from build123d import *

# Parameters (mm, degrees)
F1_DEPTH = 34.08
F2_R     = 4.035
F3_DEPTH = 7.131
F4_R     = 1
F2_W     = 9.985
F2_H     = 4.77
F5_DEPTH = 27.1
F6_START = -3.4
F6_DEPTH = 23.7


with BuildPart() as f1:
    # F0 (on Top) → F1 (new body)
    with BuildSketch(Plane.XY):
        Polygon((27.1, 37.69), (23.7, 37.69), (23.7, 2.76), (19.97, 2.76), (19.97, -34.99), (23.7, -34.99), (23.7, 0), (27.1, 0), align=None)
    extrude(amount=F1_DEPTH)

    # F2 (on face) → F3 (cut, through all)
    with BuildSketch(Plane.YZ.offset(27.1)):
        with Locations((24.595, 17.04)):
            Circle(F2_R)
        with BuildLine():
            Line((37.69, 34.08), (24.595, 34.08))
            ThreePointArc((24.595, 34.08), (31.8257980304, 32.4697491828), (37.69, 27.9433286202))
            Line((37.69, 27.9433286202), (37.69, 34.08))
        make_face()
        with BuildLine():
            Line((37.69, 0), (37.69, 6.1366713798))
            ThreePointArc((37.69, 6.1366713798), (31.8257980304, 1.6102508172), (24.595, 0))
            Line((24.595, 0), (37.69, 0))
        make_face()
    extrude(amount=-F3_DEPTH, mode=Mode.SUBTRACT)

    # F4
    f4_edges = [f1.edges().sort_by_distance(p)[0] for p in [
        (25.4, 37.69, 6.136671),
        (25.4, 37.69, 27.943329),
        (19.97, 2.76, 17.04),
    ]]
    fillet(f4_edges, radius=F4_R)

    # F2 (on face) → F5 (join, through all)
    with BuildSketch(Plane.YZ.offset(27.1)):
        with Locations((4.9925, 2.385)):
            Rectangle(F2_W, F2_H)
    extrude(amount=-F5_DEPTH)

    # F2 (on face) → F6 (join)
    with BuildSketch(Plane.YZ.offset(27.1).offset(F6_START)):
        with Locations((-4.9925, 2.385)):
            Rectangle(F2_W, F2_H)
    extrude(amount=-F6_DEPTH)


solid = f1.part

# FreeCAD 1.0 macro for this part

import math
import FreeCAD as App
import Part
import Sketcher
from FreeCAD import Vector
Q = App.Units.Quantity


def edges_at(feature, points):
    """Names of the edges that pass closest to the given points."""
    edges = feature.Shape.Edges
    near = lambda p: min(range(len(edges)), key=lambda i: edges[i].distToShape(Part.Vertex(*p))[0])
    return sorted({f"Edge{near(p) + 1}" for p in points})


def add_polygon(sketch, points):
    """Adds a closed chain of lines whose ends are joined by coincident constraints."""
    first, n = sketch.GeometryCount, len(points)
    for a, b in zip(points, points[1:] + points[:1]):
        sketch.addGeometry(Part.LineSegment(App.Vector(*a, 0), App.Vector(*b, 0)), False)
    for i in range(n):
        sketch.addConstraint(Sketcher.Constraint("Coincident", first + i, 2, first + (i + 1) % n, 1))

doc = App.newDocument("Part")
params = doc.addObject("Spreadsheet::Sheet", "Params")
for row, (alias, value) in enumerate([
    ("sketch1_width", "3.4 mm"),
    ("sketch1_width2", "3.73 mm"),
    ("sketch1_height", "34.93 mm"),
    ("sketch1_height2", "37.75 mm"),
    ("sketch1_height3", "34.99 mm"),
    ("pad1_length", "34.08 mm"),
    ("sketch2_diameter", "8.07 mm"),
    ("sketch2_radius", "17.04 mm"),
    ("fillet_radius", "1 mm"),
    ("sketch3_height", "4.77 mm"),
    ("pad2_length", "27.1 mm"),
    ("sketch4_height", "4.77 mm"),
    ("pad3_length", "23.7 mm"),
], start=1):
    params.set(f"A{row}", alias)
    params.set(f"B{row}", "=" + value)
    params.setAlias(f"B{row}", alias)

body = doc.addObject("PartDesign::Body", "Body")

sketch1 = body.newObject("Sketcher::SketchObject", "Sketch")
sketch1.AttachmentSupport = (doc.getObject("XY_Plane"), [""])
sketch1.MapMode = "FlatFace"
add_polygon(sketch1, [(27.1, 37.7), (23.7, 37.7), (23.7, 2.8), (20, 2.8), (20, -35), (23.7, -35), (23.7, 0), (27.1, 0)])
sketch1.addConstraint(Sketcher.Constraint("Horizontal", 0))
sketch1.addConstraint(Sketcher.Constraint("Vertical", 1))
sketch1.addConstraint(Sketcher.Constraint("Horizontal", 2))
sketch1.addConstraint(Sketcher.Constraint("Vertical", 3))
sketch1.addConstraint(Sketcher.Constraint("Horizontal", 4))
sketch1.addConstraint(Sketcher.Constraint("Vertical", 5))
sketch1.addConstraint(Sketcher.Constraint("Horizontal", 6))
sketch1.addConstraint(Sketcher.Constraint("Vertical", 7))
sketch1.addConstraint(Sketcher.Constraint("PointOnObject", 5, 2, -1))
sketch1.addConstraint(Sketcher.Constraint("Vertical", 1, 2, 4, 2))
sketch1.addConstraint(Sketcher.Constraint("DistanceX", 0, 2, 0, 1, Q("3.4 mm")))
sketch1.addConstraint(Sketcher.Constraint("DistanceX", 2, 2, 2, 1, Q("3.73 mm")))
sketch1.addConstraint(Sketcher.Constraint("DistanceY", 1, 2, 1, 1, Q("34.93 mm")))
sketch1.addConstraint(Sketcher.Constraint("DistanceY", 3, 2, 3, 1, Q("37.75 mm")))
sketch1.addConstraint(Sketcher.Constraint("DistanceY", 5, 1, 5, 2, Q("34.99 mm")))
sketch1.addConstraint(Sketcher.Constraint("DistanceX", -1, 1, 0, 2, Q("23.7 mm")))
sketch1.setExpression("Constraints[18]", "Params.sketch1_width")
sketch1.setExpression("Constraints[19]", "Params.sketch1_width2")
sketch1.setExpression("Constraints[20]", "Params.sketch1_height")
sketch1.setExpression("Constraints[21]", "Params.sketch1_height2")
sketch1.setExpression("Constraints[22]", "Params.sketch1_height3")
pad1 = body.newObject("PartDesign::Pad", "Pad")
pad1.Profile = sketch1
pad1.setExpression("Length", "Params.pad1_length")

sketch2 = body.newObject("Sketcher::SketchObject", "Sketch001")
sketch2.AttachmentSupport = (doc.getObject("YZ_Plane"), [""])
sketch2.MapMode = "FlatFace"
sketch2.AttachmentOffset = App.Placement(Vector(0, 0, 27.1), App.Rotation())
sketch2.addGeometry(Part.Circle(Vector(24.6, 17, 0), Vector(0, 0, 1), 4), False)
sketch2.addGeometry(Part.LineSegment(Vector(37.7, 34.1, 0), Vector(24.6, 34.1, 0)), False)
sketch2.addGeometry(Part.ArcOfCircle(Part.Circle(Vector(24.6, 17, 0), Vector(0, 0, 1), 17), math.radians(40), math.radians(90)), False)
sketch2.addGeometry(Part.LineSegment(Vector(37.7, 27.9, 0), Vector(37.7, 34.1, 0)), False)
sketch2.addGeometry(Part.LineSegment(Vector(37.7, 0, 0), Vector(37.7, 6.1, 0)), False)
sketch2.addGeometry(Part.ArcOfCircle(Part.Circle(Vector(24.6, 17, 0), Vector(0, 0, 1), 17), math.radians(-90), math.radians(-40)), False)
sketch2.addGeometry(Part.LineSegment(Vector(24.6, 0, 0), Vector(37.7, 0, 0)), False)
sketch2.addConstraint(Sketcher.Constraint("Tangent", 1, 2, 2, 2))
sketch2.addConstraint(Sketcher.Constraint("Coincident", 2, 1, 3, 1))
sketch2.addConstraint(Sketcher.Constraint("Coincident", 3, 2, 1, 1))
sketch2.addConstraint(Sketcher.Constraint("Coincident", 4, 2, 5, 2))
sketch2.addConstraint(Sketcher.Constraint("Tangent", 5, 1, 6, 1))
sketch2.addConstraint(Sketcher.Constraint("Coincident", 6, 2, 4, 1))
sketch2.addConstraint(Sketcher.Constraint("Horizontal", 1))
sketch2.addConstraint(Sketcher.Constraint("Vertical", 3))
sketch2.addConstraint(Sketcher.Constraint("Vertical", 4))
sketch2.addConstraint(Sketcher.Constraint("Horizontal", 6))
sketch2.addConstraint(Sketcher.Constraint("Coincident", 2, 3, 0, 3))
sketch2.addConstraint(Sketcher.Constraint("Coincident", 5, 3, 0, 3))
sketch2.addConstraint(Sketcher.Constraint("Equal", 2, 5))
sketch2.addConstraint(Sketcher.Constraint("PointOnObject", 5, 1, -1))
sketch2.addConstraint(Sketcher.Constraint("Vertical", 3, 2, 4, 2))
sketch2.addConstraint(Sketcher.Constraint("Diameter", 0, Q("8.07 mm")))
sketch2.addConstraint(Sketcher.Constraint("Radius", 2, Q("17.04 mm")))
sketch2.addConstraint(Sketcher.Constraint("DistanceX", 1, 2, 1, 1, Q("13.095 mm")))
sketch2.addConstraint(Sketcher.Constraint("DistanceX", -1, 1, 2, 1, Q("37.69 mm")))
sketch2.setExpression("Constraints[15]", "Params.sketch2_diameter")
sketch2.setExpression("Constraints[16]", "Params.sketch2_radius")
pocket1 = body.newObject("PartDesign::Pocket", "Pocket")
pocket1.Profile = sketch2
pocket1.Type = "ThroughAll"
doc.recompute()

fillet = body.newObject("PartDesign::Fillet", "Fillet")
fillet.Base = (pocket1, edges_at(pocket1, [(25.4, 37.69, 6.137), (25.4, 37.69, 27.943), (19.97, 2.76, 17.04)]))
fillet.setExpression("Radius", "Params.fillet_radius")

sketch3 = body.newObject("Sketcher::SketchObject", "Sketch002")
sketch3.AttachmentSupport = (doc.getObject("YZ_Plane"), [""])
sketch3.MapMode = "FlatFace"
sketch3.AttachmentOffset = App.Placement(Vector(0, 0, 27.1), App.Rotation())
add_polygon(sketch3, [(0, 4.8), (0, 0), (10, 0), (10, 4.8)])
sketch3.addConstraint(Sketcher.Constraint("Vertical", 0))
sketch3.addConstraint(Sketcher.Constraint("Horizontal", 1))
sketch3.addConstraint(Sketcher.Constraint("Vertical", 2))
sketch3.addConstraint(Sketcher.Constraint("Horizontal", 3))
sketch3.addConstraint(Sketcher.Constraint("Coincident", 0, 2, -1, 1))
sketch3.addConstraint(Sketcher.Constraint("DistanceY", 0, 2, 0, 1, Q("4.77 mm")))
sketch3.addConstraint(Sketcher.Constraint("DistanceX", 1, 1, 1, 2, Q("9.985 mm")))
sketch3.setExpression("Constraints[9]", "Params.sketch3_height")
pad2 = body.newObject("PartDesign::Pad", "Pad001")
pad2.Profile = sketch3
pad2.setExpression("Length", "Params.pad2_length")
pad2.Reversed = True

sketch4 = body.newObject("Sketcher::SketchObject", "Sketch003")
sketch4.AttachmentSupport = (doc.getObject("YZ_Plane"), [""])
sketch4.MapMode = "FlatFace"
sketch4.AttachmentOffset = App.Placement(Vector(0, 0, 23.7), App.Rotation())
add_polygon(sketch4, [(-10, 4.8), (-10, 0), (0, 0), (0, 4.8)])
sketch4.addConstraint(Sketcher.Constraint("Vertical", 0))
sketch4.addConstraint(Sketcher.Constraint("Horizontal", 1))
sketch4.addConstraint(Sketcher.Constraint("Vertical", 2))
sketch4.addConstraint(Sketcher.Constraint("Horizontal", 3))
sketch4.addConstraint(Sketcher.Constraint("Coincident", 1, 2, -1, 1))
sketch4.addConstraint(Sketcher.Constraint("DistanceY", 0, 2, 0, 1, Q("4.77 mm")))
sketch4.addConstraint(Sketcher.Constraint("DistanceX", 1, 1, 1, 2, Q("9.985 mm")))
sketch4.setExpression("Constraints[9]", "Params.sketch4_height")
pad3 = body.newObject("PartDesign::Pad", "Pad002")
pad3.Profile = sketch4
pad3.setExpression("Length", "Params.pad3_length")
pad3.Reversed = True

doc.recompute()
